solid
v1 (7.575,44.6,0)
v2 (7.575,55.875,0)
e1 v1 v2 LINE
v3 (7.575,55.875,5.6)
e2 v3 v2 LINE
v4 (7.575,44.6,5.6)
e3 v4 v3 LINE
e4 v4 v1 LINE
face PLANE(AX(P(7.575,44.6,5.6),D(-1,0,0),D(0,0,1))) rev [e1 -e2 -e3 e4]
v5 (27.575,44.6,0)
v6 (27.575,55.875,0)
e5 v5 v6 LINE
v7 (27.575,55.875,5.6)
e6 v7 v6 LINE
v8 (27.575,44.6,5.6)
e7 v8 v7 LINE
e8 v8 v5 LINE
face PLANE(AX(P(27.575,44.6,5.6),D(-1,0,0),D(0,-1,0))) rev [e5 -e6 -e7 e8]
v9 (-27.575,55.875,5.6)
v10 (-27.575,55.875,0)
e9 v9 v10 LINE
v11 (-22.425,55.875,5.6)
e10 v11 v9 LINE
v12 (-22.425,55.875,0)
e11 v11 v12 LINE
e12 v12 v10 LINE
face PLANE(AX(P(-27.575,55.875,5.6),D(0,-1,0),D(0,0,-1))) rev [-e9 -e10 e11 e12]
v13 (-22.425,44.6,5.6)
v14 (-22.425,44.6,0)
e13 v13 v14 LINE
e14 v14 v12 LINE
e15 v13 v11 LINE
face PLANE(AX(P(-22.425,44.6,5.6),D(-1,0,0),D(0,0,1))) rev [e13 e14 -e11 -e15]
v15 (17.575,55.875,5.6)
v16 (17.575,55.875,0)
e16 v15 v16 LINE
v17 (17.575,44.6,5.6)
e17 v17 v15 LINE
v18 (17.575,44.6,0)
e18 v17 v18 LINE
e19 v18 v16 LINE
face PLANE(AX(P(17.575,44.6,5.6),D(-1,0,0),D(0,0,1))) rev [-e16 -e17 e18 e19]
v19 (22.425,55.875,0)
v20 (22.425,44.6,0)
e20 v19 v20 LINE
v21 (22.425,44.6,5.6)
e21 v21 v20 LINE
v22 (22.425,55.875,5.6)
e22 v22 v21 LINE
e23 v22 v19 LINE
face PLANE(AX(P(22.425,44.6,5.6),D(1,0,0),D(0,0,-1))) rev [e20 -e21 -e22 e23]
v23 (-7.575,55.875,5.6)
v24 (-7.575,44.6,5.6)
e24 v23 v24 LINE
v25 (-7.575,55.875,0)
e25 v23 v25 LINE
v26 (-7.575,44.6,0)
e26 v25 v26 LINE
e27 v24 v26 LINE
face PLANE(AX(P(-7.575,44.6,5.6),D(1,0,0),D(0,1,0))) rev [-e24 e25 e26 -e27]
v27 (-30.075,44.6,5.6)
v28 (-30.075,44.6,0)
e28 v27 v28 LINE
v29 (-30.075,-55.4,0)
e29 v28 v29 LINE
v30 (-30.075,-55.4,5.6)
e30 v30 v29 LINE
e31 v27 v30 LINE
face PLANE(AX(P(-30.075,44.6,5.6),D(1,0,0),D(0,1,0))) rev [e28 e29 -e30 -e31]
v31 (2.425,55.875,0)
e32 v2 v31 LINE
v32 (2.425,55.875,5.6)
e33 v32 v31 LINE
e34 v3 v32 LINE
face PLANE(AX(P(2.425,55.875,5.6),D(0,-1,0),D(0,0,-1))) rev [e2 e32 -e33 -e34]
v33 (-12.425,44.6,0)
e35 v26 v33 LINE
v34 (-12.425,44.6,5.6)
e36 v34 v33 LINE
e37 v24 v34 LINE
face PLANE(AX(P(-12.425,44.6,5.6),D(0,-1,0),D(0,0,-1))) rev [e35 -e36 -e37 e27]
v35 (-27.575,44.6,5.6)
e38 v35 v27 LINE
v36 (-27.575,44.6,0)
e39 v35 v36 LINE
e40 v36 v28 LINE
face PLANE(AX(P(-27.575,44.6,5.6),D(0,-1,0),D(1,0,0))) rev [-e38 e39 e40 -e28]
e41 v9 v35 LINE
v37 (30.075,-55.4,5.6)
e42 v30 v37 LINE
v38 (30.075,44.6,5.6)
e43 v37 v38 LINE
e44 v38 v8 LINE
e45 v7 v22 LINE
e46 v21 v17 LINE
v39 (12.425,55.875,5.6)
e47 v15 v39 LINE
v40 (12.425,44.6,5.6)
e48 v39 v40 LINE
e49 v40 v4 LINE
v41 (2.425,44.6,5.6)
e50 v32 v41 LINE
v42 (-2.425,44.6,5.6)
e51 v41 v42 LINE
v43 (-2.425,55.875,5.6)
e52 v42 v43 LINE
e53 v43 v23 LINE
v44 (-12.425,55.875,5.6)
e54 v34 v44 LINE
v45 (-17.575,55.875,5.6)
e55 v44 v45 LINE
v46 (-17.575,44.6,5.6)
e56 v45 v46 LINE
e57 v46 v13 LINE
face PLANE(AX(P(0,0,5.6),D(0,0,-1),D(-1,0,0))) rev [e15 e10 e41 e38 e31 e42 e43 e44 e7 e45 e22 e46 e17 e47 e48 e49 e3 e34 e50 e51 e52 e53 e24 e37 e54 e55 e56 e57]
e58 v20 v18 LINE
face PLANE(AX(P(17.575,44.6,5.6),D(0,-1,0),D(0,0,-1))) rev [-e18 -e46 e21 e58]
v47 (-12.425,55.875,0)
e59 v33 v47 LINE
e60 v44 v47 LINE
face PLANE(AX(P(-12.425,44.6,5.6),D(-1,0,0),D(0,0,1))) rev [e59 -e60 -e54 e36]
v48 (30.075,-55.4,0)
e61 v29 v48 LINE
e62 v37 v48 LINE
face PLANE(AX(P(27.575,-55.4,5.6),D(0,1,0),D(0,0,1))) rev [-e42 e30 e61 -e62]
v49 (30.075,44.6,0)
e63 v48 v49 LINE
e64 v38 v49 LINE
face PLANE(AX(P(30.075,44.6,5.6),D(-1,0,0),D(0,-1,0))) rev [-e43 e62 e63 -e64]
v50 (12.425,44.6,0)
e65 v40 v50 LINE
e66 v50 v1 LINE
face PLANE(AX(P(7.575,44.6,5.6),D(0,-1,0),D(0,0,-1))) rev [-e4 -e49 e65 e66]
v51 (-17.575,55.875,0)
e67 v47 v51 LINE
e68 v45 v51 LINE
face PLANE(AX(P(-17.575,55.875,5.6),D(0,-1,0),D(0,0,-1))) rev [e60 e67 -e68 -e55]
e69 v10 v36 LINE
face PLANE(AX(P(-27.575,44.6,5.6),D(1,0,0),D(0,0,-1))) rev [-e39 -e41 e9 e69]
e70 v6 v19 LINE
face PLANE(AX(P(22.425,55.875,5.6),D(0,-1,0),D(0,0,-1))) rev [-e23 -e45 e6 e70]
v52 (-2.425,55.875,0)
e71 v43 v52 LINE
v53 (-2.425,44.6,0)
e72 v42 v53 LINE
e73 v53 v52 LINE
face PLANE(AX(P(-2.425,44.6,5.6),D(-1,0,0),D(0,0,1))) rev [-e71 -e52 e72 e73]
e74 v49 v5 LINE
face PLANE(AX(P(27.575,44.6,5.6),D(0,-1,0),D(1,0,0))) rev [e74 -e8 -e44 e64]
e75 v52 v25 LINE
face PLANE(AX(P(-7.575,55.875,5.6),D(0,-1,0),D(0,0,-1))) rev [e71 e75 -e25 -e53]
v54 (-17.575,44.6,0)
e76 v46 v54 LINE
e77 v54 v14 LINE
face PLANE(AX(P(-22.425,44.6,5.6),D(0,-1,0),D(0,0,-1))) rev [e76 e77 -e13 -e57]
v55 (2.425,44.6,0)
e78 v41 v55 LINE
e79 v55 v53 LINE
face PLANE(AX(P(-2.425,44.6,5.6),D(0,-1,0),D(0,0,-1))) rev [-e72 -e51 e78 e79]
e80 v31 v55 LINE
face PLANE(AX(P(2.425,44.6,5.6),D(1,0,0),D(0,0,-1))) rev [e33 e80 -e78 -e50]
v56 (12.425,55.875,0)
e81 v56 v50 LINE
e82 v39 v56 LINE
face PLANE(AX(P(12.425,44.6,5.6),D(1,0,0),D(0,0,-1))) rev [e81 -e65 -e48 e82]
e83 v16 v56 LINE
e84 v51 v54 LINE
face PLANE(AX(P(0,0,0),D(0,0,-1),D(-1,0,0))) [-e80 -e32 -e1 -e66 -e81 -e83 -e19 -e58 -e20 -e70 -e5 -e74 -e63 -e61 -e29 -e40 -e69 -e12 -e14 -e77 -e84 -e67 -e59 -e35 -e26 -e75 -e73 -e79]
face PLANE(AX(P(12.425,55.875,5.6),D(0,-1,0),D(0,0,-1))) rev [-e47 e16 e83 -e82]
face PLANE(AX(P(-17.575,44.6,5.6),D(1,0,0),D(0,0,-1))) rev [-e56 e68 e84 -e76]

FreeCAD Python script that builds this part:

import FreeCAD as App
import Part
import Sketcher
from FreeCAD import Vector
Q = App.Units.Quantity


def add_polygon(sketch, points):
    """Adds a closed chain of lines whose ends are joined by coincident constraints."""
    first, n = sketch.GeometryCount, len(points)
    for a, b in zip(points, points[1:] + points[:1]):
        sketch.addGeometry(Part.LineSegment(App.Vector(*a, 0), App.Vector(*b, 0)), False)
    for i in range(n):
        sketch.addConstraint(Sketcher.Constraint("Coincident", first + i, 2, first + (i + 1) % n, 1))

doc = App.newDocument("Part")
body = doc.addObject("PartDesign::Body", "Body")

# Sketch on XY plane
sketch1 = body.newObject("Sketcher::SketchObject", "Sketch")
sketch1.AttachmentSupport = (doc.getObject("XY_Plane"), [""])
sketch1.MapMode = "FlatFace"
add_polygon(sketch1, [(-12.4, 55.9), (-17.6, 55.9), (-17.6, 44.6), (-22.4, 44.6), (-22.4, 55.9), (-27.6, 55.9), (-27.6, 44.6), (-30.1, 44.6), (-30.1, -55.4), (30.1, -55.4), (30.1, 44.6), (27.6, 44.6), (27.6, 55.9), (22.4, 55.9), (22.4, 44.6), (17.6, 44.6), (17.6, 55.9), (12.4, 55.9), (12.4, 44.6), (7.6, 44.6), (7.6, 55.9), (2.4, 55.9), (2.4, 44.6), (-2.4, 44.6), (-2.4, 55.9), (-7.6, 55.9), (-7.6, 44.6), (-12.4, 44.6)])  # lines 0-27
sketch1.addConstraint(Sketcher.Constraint("Horizontal", 0))
sketch1.addConstraint(Sketcher.Constraint("Vertical", 1))
sketch1.addConstraint(Sketcher.Constraint("Horizontal", 2))
sketch1.addConstraint(Sketcher.Constraint("Vertical", 3))
sketch1.addConstraint(Sketcher.Constraint("Horizontal", 4))
sketch1.addConstraint(Sketcher.Constraint("Vertical", 5))
sketch1.addConstraint(Sketcher.Constraint("Horizontal", 6))
sketch1.addConstraint(Sketcher.Constraint("Vertical", 7))
sketch1.addConstraint(Sketcher.Constraint("Horizontal", 8))
sketch1.addConstraint(Sketcher.Constraint("Vertical", 9))
sketch1.addConstraint(Sketcher.Constraint("Horizontal", 10))
sketch1.addConstraint(Sketcher.Constraint("Vertical", 11))
sketch1.addConstraint(Sketcher.Constraint("Horizontal", 12))
sketch1.addConstraint(Sketcher.Constraint("Vertical", 13))
sketch1.addConstraint(Sketcher.Constraint("Horizontal", 14))
sketch1.addConstraint(Sketcher.Constraint("Vertical", 15))
sketch1.addConstraint(Sketcher.Constraint("Horizontal", 16))
sketch1.addConstraint(Sketcher.Constraint("Vertical", 17))
sketch1.addConstraint(Sketcher.Constraint("Horizontal", 18))
sketch1.addConstraint(Sketcher.Constraint("Vertical", 19))
sketch1.addConstraint(Sketcher.Constraint("Horizontal", 20))
sketch1.addConstraint(Sketcher.Constraint("Vertical", 21))
sketch1.addConstraint(Sketcher.Constraint("Horizontal", 22))
sketch1.addConstraint(Sketcher.Constraint("Vertical", 23))
sketch1.addConstraint(Sketcher.Constraint("Horizontal", 24))
sketch1.addConstraint(Sketcher.Constraint("Vertical", 25))
sketch1.addConstraint(Sketcher.Constraint("Horizontal", 26))
sketch1.addConstraint(Sketcher.Constraint("Vertical", 27))
sketch1.addConstraint(Sketcher.Constraint("Symmetric", 6, 2, 9, 2, -2))
sketch1.addConstraint(Sketcher.Constraint("Symmetric", 4, 2, 11, 2, -2))
sketch1.addConstraint(Sketcher.Constraint("Symmetric", 2, 2, 13, 2, -2))
sketch1.addConstraint(Sketcher.Constraint("Symmetric", 0, 2, 15, 2, -2))
sketch1.addConstraint(Sketcher.Constraint("Symmetric", 20, 2, 23, 2, -2))
sketch1.addConstraint(Sketcher.Constraint("Symmetric", 18, 2, 25, 2, -2))
sketch1.addConstraint(Sketcher.Constraint("Horizontal", 0, 2, 3, 2))
sketch1.addConstraint(Sketcher.Constraint("Horizontal", 2, 2, 5, 2))
sketch1.addConstraint(Sketcher.Constraint("Horizontal", 14, 2, 17, 2))
sketch1.addConstraint(Sketcher.Constraint("Horizontal", 16, 2, 19, 2))
sketch1.addConstraint(Sketcher.Constraint("Horizontal", 18, 2, 21, 2))
sketch1.addConstraint(Sketcher.Constraint("Equal", 0, 4))
sketch1.addConstraint(Sketcher.Constraint("Equal", 12, 16))
sketch1.addConstraint(Sketcher.Constraint("Equal", 14, 18))
sketch1.addConstraint(Sketcher.Constraint("Equal", 16, 20))
sketch1.addConstraint(Sketcher.Constraint("Equal", 18, 22))
sketch1.addConstraint(Sketcher.Constraint("DistanceY", 7, 2, 7, 1, Q("100 mm")))
sketch1.addConstraint(Sketcher.Constraint("DistanceX", 6, 2, 6, 1, Q("2.5 mm")))
sketch1.addConstraint(Sketcher.Constraint("DistanceX", 4, 2, 0, 2, Q("10 mm")))
sketch1.addConstraint(Sketcher.Constraint("DistanceX", 0, 2, 0, 1, Q("5.15 mm")))
sketch1.addConstraint(Sketcher.Constraint("DistanceY", -1, 1, 1, 2, Q("44.6 mm")))
sketch1.addConstraint(Sketcher.Constraint("DistanceY", 1, 2, 1, 1, Q("11.275 mm")))
pad1 = body.newObject("PartDesign::Pad", "Pad")
pad1.Profile = sketch1
pad1.Length = 5.6

doc.recompute()
